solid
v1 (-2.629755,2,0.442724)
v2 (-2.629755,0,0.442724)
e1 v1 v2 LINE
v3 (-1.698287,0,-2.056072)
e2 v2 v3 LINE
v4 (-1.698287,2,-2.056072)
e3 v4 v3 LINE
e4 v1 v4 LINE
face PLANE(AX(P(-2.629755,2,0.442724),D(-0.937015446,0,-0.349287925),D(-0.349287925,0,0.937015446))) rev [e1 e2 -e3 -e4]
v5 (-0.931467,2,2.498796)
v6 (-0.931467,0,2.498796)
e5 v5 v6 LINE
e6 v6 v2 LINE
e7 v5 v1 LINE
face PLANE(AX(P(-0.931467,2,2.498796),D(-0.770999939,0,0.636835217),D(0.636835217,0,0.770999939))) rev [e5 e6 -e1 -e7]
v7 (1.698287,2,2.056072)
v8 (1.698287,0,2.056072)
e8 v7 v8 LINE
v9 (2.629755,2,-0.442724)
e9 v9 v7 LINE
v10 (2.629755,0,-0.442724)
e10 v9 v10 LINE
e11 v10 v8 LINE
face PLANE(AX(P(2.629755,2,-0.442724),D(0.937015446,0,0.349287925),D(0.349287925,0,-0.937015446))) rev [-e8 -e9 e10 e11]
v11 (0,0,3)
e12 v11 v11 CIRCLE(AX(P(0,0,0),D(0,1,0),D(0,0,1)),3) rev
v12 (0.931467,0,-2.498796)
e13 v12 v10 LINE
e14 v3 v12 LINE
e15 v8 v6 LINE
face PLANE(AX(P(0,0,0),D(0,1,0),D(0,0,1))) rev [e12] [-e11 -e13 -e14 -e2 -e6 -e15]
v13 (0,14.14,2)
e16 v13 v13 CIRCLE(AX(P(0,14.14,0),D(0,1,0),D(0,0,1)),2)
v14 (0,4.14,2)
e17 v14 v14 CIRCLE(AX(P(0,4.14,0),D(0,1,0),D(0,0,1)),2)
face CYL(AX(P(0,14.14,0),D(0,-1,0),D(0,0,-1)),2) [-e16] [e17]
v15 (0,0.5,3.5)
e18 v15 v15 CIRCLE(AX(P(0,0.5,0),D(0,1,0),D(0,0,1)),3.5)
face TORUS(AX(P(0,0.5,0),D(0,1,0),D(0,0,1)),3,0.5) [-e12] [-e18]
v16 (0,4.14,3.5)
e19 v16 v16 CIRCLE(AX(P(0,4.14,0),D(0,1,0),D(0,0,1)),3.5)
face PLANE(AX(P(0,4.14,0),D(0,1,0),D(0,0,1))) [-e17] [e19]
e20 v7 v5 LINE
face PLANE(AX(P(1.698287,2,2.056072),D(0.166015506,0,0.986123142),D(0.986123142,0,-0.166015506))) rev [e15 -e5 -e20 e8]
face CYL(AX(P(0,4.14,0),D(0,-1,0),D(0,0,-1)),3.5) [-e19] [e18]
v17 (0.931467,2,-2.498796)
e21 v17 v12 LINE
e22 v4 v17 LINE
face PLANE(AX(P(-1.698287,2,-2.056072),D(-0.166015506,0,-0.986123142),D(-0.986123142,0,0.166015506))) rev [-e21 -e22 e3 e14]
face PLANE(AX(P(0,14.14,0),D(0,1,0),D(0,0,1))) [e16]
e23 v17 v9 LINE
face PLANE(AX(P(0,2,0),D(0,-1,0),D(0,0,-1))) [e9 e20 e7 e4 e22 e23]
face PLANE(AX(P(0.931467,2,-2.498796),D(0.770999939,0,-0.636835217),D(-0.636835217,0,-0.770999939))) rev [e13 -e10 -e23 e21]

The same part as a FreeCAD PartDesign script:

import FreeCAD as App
import Part
import Sketcher
from FreeCAD import Vector
Q = App.Units.Quantity


def edges_at(feature, points):
    """Names of the edges that pass closest to the given points."""
    edges = feature.Shape.Edges
    near = lambda p: min(range(len(edges)), key=lambda i: edges[i].distToShape(Part.Vertex(*p))[0])
    return sorted({f"Edge{near(p) + 1}" for p in points})


def add_polygon(sketch, points):
    """Adds a closed chain of lines whose ends are joined by coincident constraints."""
    first, n = sketch.GeometryCount, len(points)
    for a, b in zip(points, points[1:] + points[:1]):
        sketch.addGeometry(Part.LineSegment(App.Vector(*a, 0), App.Vector(*b, 0)), False)
    for i in range(n):
        sketch.addConstraint(Sketcher.Constraint("Coincident", first + i, 2, first + (i + 1) % n, 1))

doc = App.newDocument("Part")
body = doc.addObject("PartDesign::Body", "Body")

sketch1 = body.newObject("Sketcher::SketchObject", "Sketch")
sketch1.AttachmentSupport = (doc.getObject("XZ_Plane"), [""])
sketch1.MapMode = "FlatFace"
sketch1.addGeometry(Part.Circle(Vector(0, 0, 0), Vector(0, 0, 1), 3.5), False)
sketch1.addConstraint([
    Sketcher.Constraint("Coincident", 0, 3, -1, 1),
    Sketcher.Constraint("Diameter", 0, Q("7 mm")),
])
pad1 = body.newObject("PartDesign::Pad", "Pad")
pad1.Profile = sketch1
pad1.Length = 4.14
pad1.Reversed = True

sketch2 = body.newObject("Sketcher::SketchObject", "Sketch001")
sketch2.AttachmentSupport = (doc.getObject("XZ_Plane"), [""])
sketch2.MapMode = "FlatFace"
sketch2.AttachmentOffset = App.Placement(Vector(0, 0, -4.14), App.Rotation())
sketch2.addGeometry(Part.Circle(Vector(0, 0, 0), Vector(0, 0, 1), 2), False)
sketch2.addConstraint([
    Sketcher.Constraint("Coincident", 0, 3, -1, 1),
    Sketcher.Constraint("Diameter", 0, Q("4 mm")),
])
pad2 = body.newObject("PartDesign::Pad", "Pad001")
pad2.Profile = sketch2
pad2.Length = 10
pad2.Reversed = True
doc.recompute()

fillet = body.newObject("PartDesign::Fillet", "Fillet")
fillet.Base = (pad2, edges_at(pad2, [(0, 0, -3.5)]))
fillet.Radius = 0.5

sketch3 = body.newObject("Sketcher::SketchObject", "Sketch002")
sketch3.AttachmentSupport = (doc.getObject("XZ_Plane"), [""])
sketch3.MapMode = "FlatFace"
add_polygon(sketch3, [(1.698287, 2.056072), (-0.931467, 2.498796), (-2.629755, 0.442724), (-1.698287, -2.056072), (0.931467, -2.498796), (2.629755, -0.442724)])
sketch3.addConstraint([
    Sketcher.Constraint("Symmetric", 0, 2, 3, 2, -1, 1),
    Sketcher.Constraint("Symmetric", 1, 2, 4, 2, -1, 1),
    Sketcher.Constraint("Symmetric", 2, 2, 5, 2, -1, 1),
    Sketcher.Constraint("Equal", 0, 1),
    Sketcher.Constraint("Equal", 1, 2),
    Sketcher.Constraint("Distance", 0, Q("2.666761 mm")),
    Sketcher.Constraint("DistanceX", 2, 2, 0, 2, Q("0.76682 mm")),
    Sketcher.Constraint("DistanceY", 2, 2, 0, 2, Q("4.554869 mm")),
    Sketcher.Constraint("DistanceX", 1, 2, 3, 2, Q("3.561222 mm")),
])
pocket1 = body.newObject("PartDesign::Pocket", "Pocket")
pocket1.Profile = sketch3
pocket1.Length = 2

doc.recompute()
